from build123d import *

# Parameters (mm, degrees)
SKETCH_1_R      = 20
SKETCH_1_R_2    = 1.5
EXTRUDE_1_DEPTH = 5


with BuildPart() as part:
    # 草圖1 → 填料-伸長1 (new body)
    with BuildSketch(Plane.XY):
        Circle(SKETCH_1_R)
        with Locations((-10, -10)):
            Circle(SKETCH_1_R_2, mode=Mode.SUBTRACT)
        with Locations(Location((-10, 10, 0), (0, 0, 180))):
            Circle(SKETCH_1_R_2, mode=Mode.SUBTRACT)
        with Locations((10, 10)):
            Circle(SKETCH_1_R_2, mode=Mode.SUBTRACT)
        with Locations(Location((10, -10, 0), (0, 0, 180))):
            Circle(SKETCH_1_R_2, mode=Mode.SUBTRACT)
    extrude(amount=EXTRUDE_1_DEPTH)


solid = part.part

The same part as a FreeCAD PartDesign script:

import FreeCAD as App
import Part
import Sketcher
from FreeCAD import Vector
Q = App.Units.Quantity

doc = App.newDocument("Part")
body = doc.addObject("PartDesign::Body", "Body")

sketch1 = body.newObject("Sketcher::SketchObject", "Sketch")
sketch1.AttachmentSupport = (doc.getObject("XY_Plane"), [""])
sketch1.MapMode = "FlatFace"
sketch1.addGeometry([
    Part.Circle(Vector(0, 0, 0), Vector(0, 0, 1), 20),
    Part.Circle(Vector(-10, -10, 0), Vector(0, 0, 1), 1.5),
    Part.Circle(Vector(10, -10, 0), Vector(0, 0, 1), 1.5),
    Part.Circle(Vector(-10, 10, 0), Vector(0, 0, 1), 1.5),
    Part.Circle(Vector(10, 10, 0), Vector(0, 0, 1), 1.5),
], False)
sketch1.addConstraint([
    Sketcher.Constraint("Coincident", 0, 3, -1, 1),
    Sketcher.Constraint("Equal", 1, 2),
    Sketcher.Constraint("Equal", 2, 3),
    Sketcher.Constraint("Equal", 3, 4),
    Sketcher.Constraint("Symmetric", 2, 3, 3, 3, -1, 1),
    Sketcher.Constraint("Symmetric", 1, 3, 4, 3, -1, 1),
    Sketcher.Constraint("Symmetric", 1, 3, 2, 3, -2),
    Sketcher.Constraint("Diameter", 0, Q("40 mm")),
    Sketcher.Constraint("Diameter", 1, Q("3 mm")),
    Sketcher.Constraint("DistanceX", 1, 3, -1, 1, Q("10 mm")),
    Sketcher.Constraint("DistanceY", 1, 3, -1, 1, Q("10 mm")),
])
pad1 = body.newObject("PartDesign::Pad", "Pad")
pad1.Profile = sketch1
pad1.Length = 5

doc.recompute()
